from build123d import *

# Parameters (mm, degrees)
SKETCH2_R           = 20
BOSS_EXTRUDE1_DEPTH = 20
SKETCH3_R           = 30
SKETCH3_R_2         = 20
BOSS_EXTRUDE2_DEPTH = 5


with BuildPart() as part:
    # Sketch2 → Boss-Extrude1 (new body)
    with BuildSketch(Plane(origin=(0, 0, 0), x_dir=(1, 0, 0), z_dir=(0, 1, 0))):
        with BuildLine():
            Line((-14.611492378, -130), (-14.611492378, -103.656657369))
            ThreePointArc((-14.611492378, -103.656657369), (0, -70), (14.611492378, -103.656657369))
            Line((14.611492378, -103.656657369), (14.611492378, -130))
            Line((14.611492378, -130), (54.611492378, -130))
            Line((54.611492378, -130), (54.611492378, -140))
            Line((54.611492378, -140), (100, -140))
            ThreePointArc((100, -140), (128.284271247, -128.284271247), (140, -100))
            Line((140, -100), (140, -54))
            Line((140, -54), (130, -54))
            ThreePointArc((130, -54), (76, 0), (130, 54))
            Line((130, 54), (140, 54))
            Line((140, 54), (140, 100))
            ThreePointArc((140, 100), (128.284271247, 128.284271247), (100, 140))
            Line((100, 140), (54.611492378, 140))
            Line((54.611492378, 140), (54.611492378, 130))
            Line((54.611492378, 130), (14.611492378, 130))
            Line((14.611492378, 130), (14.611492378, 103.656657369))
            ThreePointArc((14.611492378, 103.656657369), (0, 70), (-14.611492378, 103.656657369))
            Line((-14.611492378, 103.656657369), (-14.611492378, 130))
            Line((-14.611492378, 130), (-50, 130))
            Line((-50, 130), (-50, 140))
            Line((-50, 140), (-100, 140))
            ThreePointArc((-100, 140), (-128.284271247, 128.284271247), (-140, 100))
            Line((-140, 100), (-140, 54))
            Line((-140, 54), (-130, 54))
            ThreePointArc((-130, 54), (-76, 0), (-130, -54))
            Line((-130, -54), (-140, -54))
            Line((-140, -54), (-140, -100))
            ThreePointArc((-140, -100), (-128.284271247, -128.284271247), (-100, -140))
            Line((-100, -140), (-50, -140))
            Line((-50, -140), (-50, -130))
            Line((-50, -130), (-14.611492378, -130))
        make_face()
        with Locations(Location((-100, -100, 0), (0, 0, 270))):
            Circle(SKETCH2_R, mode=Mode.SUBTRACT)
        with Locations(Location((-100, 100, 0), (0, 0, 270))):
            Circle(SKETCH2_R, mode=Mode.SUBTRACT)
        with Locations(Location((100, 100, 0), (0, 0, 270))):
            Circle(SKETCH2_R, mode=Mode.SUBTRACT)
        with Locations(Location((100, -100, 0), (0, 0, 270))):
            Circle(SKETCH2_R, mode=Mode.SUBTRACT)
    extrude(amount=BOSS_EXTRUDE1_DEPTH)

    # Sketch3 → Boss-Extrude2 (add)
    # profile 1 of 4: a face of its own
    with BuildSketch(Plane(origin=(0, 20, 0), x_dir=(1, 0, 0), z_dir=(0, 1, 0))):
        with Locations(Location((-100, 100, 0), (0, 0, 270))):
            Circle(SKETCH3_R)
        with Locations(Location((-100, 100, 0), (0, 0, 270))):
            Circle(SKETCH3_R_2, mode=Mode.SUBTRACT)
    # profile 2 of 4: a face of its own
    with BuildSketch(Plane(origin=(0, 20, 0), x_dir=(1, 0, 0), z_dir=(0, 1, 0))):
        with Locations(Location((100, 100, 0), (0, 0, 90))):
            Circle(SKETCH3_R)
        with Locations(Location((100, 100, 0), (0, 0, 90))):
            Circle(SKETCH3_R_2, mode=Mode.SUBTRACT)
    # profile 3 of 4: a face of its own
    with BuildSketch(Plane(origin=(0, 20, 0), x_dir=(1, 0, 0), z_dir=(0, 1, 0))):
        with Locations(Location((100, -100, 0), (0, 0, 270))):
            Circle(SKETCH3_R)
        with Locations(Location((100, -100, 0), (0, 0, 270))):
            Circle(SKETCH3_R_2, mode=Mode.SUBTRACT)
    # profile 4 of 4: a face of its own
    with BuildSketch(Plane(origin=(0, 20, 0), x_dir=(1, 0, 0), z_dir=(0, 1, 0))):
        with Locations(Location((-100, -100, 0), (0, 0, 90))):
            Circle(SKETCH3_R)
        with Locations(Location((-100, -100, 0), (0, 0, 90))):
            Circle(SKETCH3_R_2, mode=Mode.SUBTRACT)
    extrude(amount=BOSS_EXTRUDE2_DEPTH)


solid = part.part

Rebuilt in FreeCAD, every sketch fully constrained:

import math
import FreeCAD as App
import Part
import Sketcher

V = App.Vector

doc = App.newDocument("Part")
body = doc.addObject("PartDesign::Body", "Body")

# Sketch on XZ plane
sketch1 = body.newObject("Sketcher::SketchObject", "Sketch")
sketch1.AttachmentSupport = (doc.getObject("XZ_Plane"), [""])
sketch1.MapMode = "FlatFace"
sketch1.addGeometry(Part.LineSegment(V(-15, 130, 0), V(-15, 104, 0)), False)
sketch1.addGeometry(Part.ArcOfCircle(Part.Circle(V(0, 90, 0), V(0, 0, 1), 20), math.radians(137), math.radians(403)), False)
sketch1.addGeometry(Part.LineSegment(V(15, 104, 0), V(15, 130, 0)), False)
sketch1.addGeometry(Part.LineSegment(V(15, 130, 0), V(55, 130, 0)), False)
sketch1.addGeometry(Part.LineSegment(V(55, 130, 0), V(55, 140, 0)), False)
sketch1.addGeometry(Part.LineSegment(V(55, 140, 0), V(100, 140, 0)), False)
sketch1.addGeometry(Part.ArcOfCircle(Part.Circle(V(100, 100, 0), V(0, 0, 1), 40), math.radians(0), math.radians(90)), False)
sketch1.addGeometry(Part.LineSegment(V(140, 100, 0), V(140, 54, 0)), False)
sketch1.addGeometry(Part.LineSegment(V(140, 54, 0), V(130, 54, 0)), False)
sketch1.addGeometry(Part.ArcOfCircle(Part.Circle(V(130, 0, 0), V(0, 0, 1), 54), math.radians(90), math.radians(270)), False)
sketch1.addGeometry(Part.LineSegment(V(130, -54, 0), V(140, -54, 0)), False)
sketch1.addGeometry(Part.LineSegment(V(140, -54, 0), V(140, -100, 0)), False)
sketch1.addGeometry(Part.ArcOfCircle(Part.Circle(V(100, -100, 0), V(0, 0, 1), 40), math.radians(-90), math.radians(0)), False)
sketch1.addGeometry(Part.LineSegment(V(100, -140, 0), V(55, -140, 0)), False)
sketch1.addGeometry(Part.LineSegment(V(55, -140, 0), V(55, -130, 0)), False)
sketch1.addGeometry(Part.LineSegment(V(55, -130, 0), V(15, -130, 0)), False)
sketch1.addGeometry(Part.LineSegment(V(15, -130, 0), V(15, -104, 0)), False)
sketch1.addGeometry(Part.ArcOfCircle(Part.Circle(V(0, -90, 0), V(0, 0, 1), 20), math.radians(-43), math.radians(223)), False)
sketch1.addGeometry(Part.LineSegment(V(-15, -104, 0), V(-15, -130, 0)), False)
sketch1.addGeometry(Part.LineSegment(V(-15, -130, 0), V(-50, -130, 0)), False)
sketch1.addGeometry(Part.LineSegment(V(-50, -130, 0), V(-50, -140, 0)), False)
sketch1.addGeometry(Part.LineSegment(V(-50, -140, 0), V(-100, -140, 0)), False)
sketch1.addGeometry(Part.ArcOfCircle(Part.Circle(V(-100, -100, 0), V(0, 0, 1), 40), math.radians(-180), math.radians(-90)), False)
sketch1.addGeometry(Part.LineSegment(V(-140, -100, 0), V(-140, -54, 0)), False)
sketch1.addGeometry(Part.LineSegment(V(-140, -54, 0), V(-130, -54, 0)), False)
sketch1.addGeometry(Part.ArcOfCircle(Part.Circle(V(-130, 0, 0), V(0, 0, 1), 54), math.radians(-90), math.radians(90)), False)
sketch1.addGeometry(Part.LineSegment(V(-130, 54, 0), V(-140, 54, 0)), False)
sketch1.addGeometry(Part.LineSegment(V(-140, 54, 0), V(-140, 100, 0)), False)
sketch1.addGeometry(Part.ArcOfCircle(Part.Circle(V(-100, 100, 0), V(0, 0, 1), 40), math.radians(90), math.radians(180)), False)
sketch1.addGeometry(Part.LineSegment(V(-100, 140, 0), V(-50, 140, 0)), False)
sketch1.addGeometry(Part.LineSegment(V(-50, 140, 0), V(-50, 130, 0)), False)
sketch1.addGeometry(Part.LineSegment(V(-50, 130, 0), V(-15, 130, 0)), False)
sketch1.addGeometry(Part.Circle(V(-100, 100, 0), V(0, 0, 1), 20), False)
sketch1.addGeometry(Part.Circle(V(100, 100, 0), V(0, 0, 1), 20), False)
sketch1.addGeometry(Part.Circle(V(-100, -100, 0), V(0, 0, 1), 20), False)
sketch1.addGeometry(Part.Circle(V(100, -100, 0), V(0, 0, 1), 20), False)
sketch1.addConstraint(Sketcher.Constraint("Coincident", 0, 2, 1, 1))
sketch1.addConstraint(Sketcher.Constraint("Coincident", 1, 2, 2, 1))
sketch1.addConstraint(Sketcher.Constraint("Coincident", 2, 2, 3, 1))
sketch1.addConstraint(Sketcher.Constraint("Coincident", 3, 2, 4, 1))
sketch1.addConstraint(Sketcher.Constraint("Coincident", 4, 2, 5, 1))
sketch1.addConstraint(Sketcher.Constraint("Tangent", 5, 2, 6, 2))
sketch1.addConstraint(Sketcher.Constraint("Tangent", 6, 1, 7, 1))
sketch1.addConstraint(Sketcher.Constraint("Coincident", 7, 2, 8, 1))
sketch1.addConstraint(Sketcher.Constraint("Tangent", 8, 2, 9, 1))
sketch1.addConstraint(Sketcher.Constraint("Tangent", 9, 2, 10, 1))
sketch1.addConstraint(Sketcher.Constraint("Coincident", 10, 2, 11, 1))
sketch1.addConstraint(Sketcher.Constraint("Tangent", 11, 2, 12, 2))
sketch1.addConstraint(Sketcher.Constraint("Tangent", 12, 1, 13, 1))
sketch1.addConstraint(Sketcher.Constraint("Coincident", 13, 2, 14, 1))
sketch1.addConstraint(Sketcher.Constraint("Coincident", 14, 2, 15, 1))
sketch1.addConstraint(Sketcher.Constraint("Coincident", 15, 2, 16, 1))
sketch1.addConstraint(Sketcher.Constraint("Coincident", 16, 2, 17, 1))
sketch1.addConstraint(Sketcher.Constraint("Coincident", 17, 2, 18, 1))
sketch1.addConstraint(Sketcher.Constraint("Coincident", 18, 2, 19, 1))
sketch1.addConstraint(Sketcher.Constraint("Coincident", 19, 2, 20, 1))
sketch1.addConstraint(Sketcher.Constraint("Coincident", 20, 2, 21, 1))
sketch1.addConstraint(Sketcher.Constraint("Tangent", 21, 2, 22, 2))
sketch1.addConstraint(Sketcher.Constraint("Tangent", 22, 1, 23, 1))
sketch1.addConstraint(Sketcher.Constraint("Coincident", 23, 2, 24, 1))
sketch1.addConstraint(Sketcher.Constraint("Tangent", 24, 2, 25, 1))
sketch1.addConstraint(Sketcher.Constraint("Tangent", 25, 2, 26, 1))
sketch1.addConstraint(Sketcher.Constraint("Coincident", 26, 2, 27, 1))
sketch1.addConstraint(Sketcher.Constraint("Tangent", 27, 2, 28, 2))
sketch1.addConstraint(Sketcher.Constraint("Tangent", 28, 1, 29, 1))
sketch1.addConstraint(Sketcher.Constraint("Coincident", 29, 2, 30, 1))
sketch1.addConstraint(Sketcher.Constraint("Coincident", 30, 2, 31, 1))
sketch1.addConstraint(Sketcher.Constraint("Coincident", 31, 2, 0, 1))
sketch1.addConstraint(Sketcher.Constraint("Vertical", 0))
sketch1.addConstraint(Sketcher.Constraint("Vertical", 2))
sketch1.addConstraint(Sketcher.Constraint("Horizontal", 3))
sketch1.addConstraint(Sketcher.Constraint("Vertical", 4))
sketch1.addConstraint(Sketcher.Constraint("Horizontal", 5))
sketch1.addConstraint(Sketcher.Constraint("Vertical", 7))
sketch1.addConstraint(Sketcher.Constraint("Horizontal", 8))
sketch1.addConstraint(Sketcher.Constraint("Horizontal", 10))
sketch1.addConstraint(Sketcher.Constraint("Vertical", 11))
sketch1.addConstraint(Sketcher.Constraint("Horizontal", 13))
sketch1.addConstraint(Sketcher.Constraint("Vertical", 14))
sketch1.addConstraint(Sketcher.Constraint("Horizontal", 15))
sketch1.addConstraint(Sketcher.Constraint("Vertical", 16))
sketch1.addConstraint(Sketcher.Constraint("Vertical", 18))
sketch1.addConstraint(Sketcher.Constraint("Horizontal", 19))
sketch1.addConstraint(Sketcher.Constraint("Vertical", 20))
sketch1.addConstraint(Sketcher.Constraint("Horizontal", 21))
sketch1.addConstraint(Sketcher.Constraint("Vertical", 23))
sketch1.addConstraint(Sketcher.Constraint("Horizontal", 24))
sketch1.addConstraint(Sketcher.Constraint("Horizontal", 26))
sketch1.addConstraint(Sketcher.Constraint("Vertical", 27))
sketch1.addConstraint(Sketcher.Constraint("Horizontal", 29))
sketch1.addConstraint(Sketcher.Constraint("Vertical", 30))
sketch1.addConstraint(Sketcher.Constraint("Horizontal", 31))
sketch1.addConstraint(Sketcher.Constraint("Coincident", 32, 3, 28, 3))
sketch1.addConstraint(Sketcher.Constraint("Coincident", 33, 3, 6, 3))
sketch1.addConstraint(Sketcher.Constraint("Coincident", 34, 3, 22, 3))
sketch1.addConstraint(Sketcher.Constraint("Coincident", 35, 3, 12, 3))
sketch1.addConstraint(Sketcher.Constraint("Equal", 6, 12))
sketch1.addConstraint(Sketcher.Constraint("Equal", 1, 17))
sketch1.addConstraint(Sketcher.Constraint("Equal", 12, 22))
sketch1.addConstraint(Sketcher.Constraint("Equal", 9, 25))
sketch1.addConstraint(Sketcher.Constraint("Equal", 22, 28))
sketch1.addConstraint(Sketcher.Constraint("Equal", 17, 32))
sketch1.addConstraint(Sketcher.Constraint("Equal", 32, 33))
sketch1.addConstraint(Sketcher.Constraint("Equal", 33, 34))
sketch1.addConstraint(Sketcher.Constraint("Equal", 34, 35))
sketch1.addConstraint(Sketcher.Constraint("Symmetric", 1, 3, 17, 3, -1, 1))
sketch1.addConstraint(Sketcher.Constraint("Symmetric", 6, 3, 22, 3, -1, 1))
sketch1.addConstraint(Sketcher.Constraint("Symmetric", 9, 3, 25, 3, -1, 1))
sketch1.addConstraint(Sketcher.Constraint("Symmetric", 12, 3, 28, 3, -1, 1))
sketch1.addConstraint(Sketcher.Constraint("Symmetric", 2, 2, 18, 2, -1, 1))
sketch1.addConstraint(Sketcher.Constraint("Symmetric", 15, 2, 31, 2, -1, 1))
sketch1.addConstraint(Sketcher.Constraint("Symmetric", 12, 3, 22, 3, -2))
sketch1.addConstraint(Sketcher.Constraint("Symmetric", 0, 2, 1, 2, -2))
sketch1.addConstraint(Sketcher.Constraint("Symmetric", 3, 2, 14, 2, -1))
sketch1.addConstraint(Sketcher.Constraint("PointOnObject", 9, 3, -1))
sketch1.addConstraint(Sketcher.Constraint("Vertical", 20, 2, 29, 2))
sketch1.addConstraint(Sketcher.Constraint("Equal", 26, 4))
sketch1.addConstraint(Sketcher.Constraint("Diameter", 32, 40.0))
sketch1.addConstraint(Sketcher.Constraint("Radius", 6, 40.0))
sketch1.addConstraint(Sketcher.Constraint("Radius", 9, 54.0))
sketch1.addConstraint(Sketcher.Constraint("DistanceX", 3, 1, 3, 2, 40.0))
sketch1.addConstraint(Sketcher.Constraint("DistanceX", 8, 2, 8, 1, 10.0))
sketch1.addConstraint(Sketcher.Constraint("DistanceX", 21, 2, 21, 1, 50.0))
sketch1.addConstraint(Sketcher.Constraint("DistanceY", 7, 2, 7, 1, 46.0))
sketch1.addConstraint(Sketcher.Constraint("DistanceY", -1, 1, 1, 3, 90.0))
sketch1.addConstraint(Sketcher.Constraint("DistanceX", -1, 1, 6, 3, 100.0))
sketch1.addConstraint(Sketcher.Constraint("DistanceX", 5, 1, 5, 2, 45.388508))
pad1 = body.newObject("PartDesign::Pad", "Pad")
pad1.Profile = sketch1
pad1.Length = 20
pad1.Reversed = True

# Sketch on XZ plane
sketch2 = body.newObject("Sketcher::SketchObject", "Sketch001")
sketch2.AttachmentSupport = (doc.getObject("XZ_Plane"), [""])
sketch2.MapMode = "FlatFace"
sketch2.AttachmentOffset = App.Placement(V(0, 0, -20), App.Rotation())
sketch2.addGeometry(Part.Circle(V(-100, -100, 0), V(0, 0, 1), 30), False)
sketch2.addGeometry(Part.Circle(V(-100, -100, 0), V(0, 0, 1), 20), False)
sketch2.addGeometry(Part.Circle(V(100, -100, 0), V(0, 0, 1), 30), False)
sketch2.addGeometry(Part.Circle(V(100, -100, 0), V(0, 0, 1), 20), False)
sketch2.addGeometry(Part.Circle(V(100, 100, 0), V(0, 0, 1), 30), False)
sketch2.addGeometry(Part.Circle(V(100, 100, 0), V(0, 0, 1), 20), False)
sketch2.addGeometry(Part.Circle(V(-100, 100, 0), V(0, 0, 1), 30), False)
sketch2.addGeometry(Part.Circle(V(-100, 100, 0), V(0, 0, 1), 20), False)
sketch2.addConstraint(Sketcher.Constraint("Coincident", 1, 3, 0, 3))
sketch2.addConstraint(Sketcher.Constraint("Coincident", 3, 3, 2, 3))
sketch2.addConstraint(Sketcher.Constraint("Coincident", 5, 3, 4, 3))
sketch2.addConstraint(Sketcher.Constraint("Coincident", 7, 3, 6, 3))
sketch2.addConstraint(Sketcher.Constraint("Equal", 0, 2))
sketch2.addConstraint(Sketcher.Constraint("Equal", 1, 3))
sketch2.addConstraint(Sketcher.Constraint("Equal", 2, 4))
sketch2.addConstraint(Sketcher.Constraint("Equal", 3, 5))
sketch2.addConstraint(Sketcher.Constraint("Equal", 4, 6))
sketch2.addConstraint(Sketcher.Constraint("Equal", 5, 7))
sketch2.addConstraint(Sketcher.Constraint("Symmetric", 0, 3, 4, 3, -1, 1))
sketch2.addConstraint(Sketcher.Constraint("Symmetric", 2, 3, 6, 3, -1, 1))
sketch2.addConstraint(Sketcher.Constraint("Symmetric", 0, 3, 2, 3, -2))
sketch2.addConstraint(Sketcher.Constraint("Diameter", 0, 60.0))
sketch2.addConstraint(Sketcher.Constraint("Diameter", 1, 40.0))
sketch2.addConstraint(Sketcher.Constraint("DistanceX", 0, 3, -1, 1, 100.0))
sketch2.addConstraint(Sketcher.Constraint("DistanceY", 0, 3, -1, 1, 100.0))
pad2 = body.newObject("PartDesign::Pad", "Pad001")
pad2.Profile = sketch2
pad2.Length = 5
pad2.Reversed = True

doc.recompute()
